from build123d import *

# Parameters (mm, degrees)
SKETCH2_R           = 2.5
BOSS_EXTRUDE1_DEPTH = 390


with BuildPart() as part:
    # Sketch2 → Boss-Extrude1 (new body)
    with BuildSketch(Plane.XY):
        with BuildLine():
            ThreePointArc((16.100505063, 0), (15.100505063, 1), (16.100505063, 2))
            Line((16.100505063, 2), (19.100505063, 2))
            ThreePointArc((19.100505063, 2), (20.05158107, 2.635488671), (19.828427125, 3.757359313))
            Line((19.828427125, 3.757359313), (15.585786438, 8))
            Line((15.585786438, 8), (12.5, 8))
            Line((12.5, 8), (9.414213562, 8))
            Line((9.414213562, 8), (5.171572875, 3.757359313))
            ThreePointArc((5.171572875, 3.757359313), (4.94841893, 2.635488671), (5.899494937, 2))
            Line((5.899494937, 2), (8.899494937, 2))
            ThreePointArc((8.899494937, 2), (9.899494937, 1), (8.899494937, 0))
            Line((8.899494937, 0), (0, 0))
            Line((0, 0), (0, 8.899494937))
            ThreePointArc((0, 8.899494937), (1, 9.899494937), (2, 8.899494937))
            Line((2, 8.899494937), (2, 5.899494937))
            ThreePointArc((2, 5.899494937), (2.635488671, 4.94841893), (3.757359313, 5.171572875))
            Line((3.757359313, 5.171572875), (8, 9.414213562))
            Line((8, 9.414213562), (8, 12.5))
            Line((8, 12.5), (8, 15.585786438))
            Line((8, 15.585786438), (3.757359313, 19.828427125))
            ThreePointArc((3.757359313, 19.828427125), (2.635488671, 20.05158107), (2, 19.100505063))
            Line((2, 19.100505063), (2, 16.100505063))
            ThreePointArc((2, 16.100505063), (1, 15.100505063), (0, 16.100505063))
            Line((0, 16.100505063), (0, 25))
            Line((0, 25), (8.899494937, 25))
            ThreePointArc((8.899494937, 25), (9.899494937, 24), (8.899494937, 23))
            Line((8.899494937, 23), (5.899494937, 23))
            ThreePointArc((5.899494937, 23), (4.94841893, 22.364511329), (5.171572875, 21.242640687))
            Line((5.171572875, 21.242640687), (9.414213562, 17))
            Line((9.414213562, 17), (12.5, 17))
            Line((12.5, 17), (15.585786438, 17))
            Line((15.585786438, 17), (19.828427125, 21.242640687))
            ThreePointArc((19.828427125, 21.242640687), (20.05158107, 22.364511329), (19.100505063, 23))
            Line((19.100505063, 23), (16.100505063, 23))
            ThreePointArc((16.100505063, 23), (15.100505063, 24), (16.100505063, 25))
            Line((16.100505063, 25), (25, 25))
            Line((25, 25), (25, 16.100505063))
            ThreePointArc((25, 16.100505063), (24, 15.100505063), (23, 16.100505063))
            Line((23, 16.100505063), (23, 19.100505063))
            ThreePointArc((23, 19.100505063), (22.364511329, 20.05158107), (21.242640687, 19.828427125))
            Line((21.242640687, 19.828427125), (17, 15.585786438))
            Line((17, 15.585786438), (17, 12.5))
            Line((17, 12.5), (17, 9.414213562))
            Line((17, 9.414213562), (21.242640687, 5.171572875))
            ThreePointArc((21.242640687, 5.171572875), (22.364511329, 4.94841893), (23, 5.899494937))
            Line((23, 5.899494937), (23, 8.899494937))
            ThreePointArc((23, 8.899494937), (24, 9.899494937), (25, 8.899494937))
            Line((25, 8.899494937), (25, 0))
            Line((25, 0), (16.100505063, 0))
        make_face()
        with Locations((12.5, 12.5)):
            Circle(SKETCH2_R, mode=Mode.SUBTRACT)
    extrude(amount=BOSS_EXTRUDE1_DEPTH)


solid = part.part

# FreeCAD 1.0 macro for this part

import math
import FreeCAD as App
import Part
import Sketcher

doc = App.newDocument("Part")
body = doc.addObject("PartDesign::Body", "Body")

# Sketch on XY plane
sketch1 = doc.addObject("Sketcher::SketchObject", "Sketch")
body.addObject(sketch1)
sketch1.AttachmentSupport = (doc.XY_Plane, [""])
sketch1.MapMode = "FlatFace"
sketch1.addGeometry(Part.ArcOfCircle(Part.Circle(App.Vector(16.100505, 1, 0), App.Vector(0, 0, 1), 1), math.radians(90), math.radians(270)), False)
sketch1.addGeometry(Part.LineSegment(App.Vector(16.100505, 0, 0), App.Vector(25, 0, 0)), False)
sketch1.addGeometry(Part.LineSegment(App.Vector(25, 0, 0), App.Vector(25, 8.899495, 0)), False)
sketch1.addGeometry(Part.ArcOfCircle(Part.Circle(App.Vector(24, 8.899495, 0), App.Vector(0, 0, 1), 1), math.radians(0), math.radians(180)), False)
sketch1.addGeometry(Part.LineSegment(App.Vector(23, 8.899495, 0), App.Vector(23, 5.899495, 0)), False)
sketch1.addGeometry(Part.ArcOfCircle(Part.Circle(App.Vector(21.970563, 5.899495, 0), App.Vector(0, 0, 1), 1.029437), math.radians(-135), math.radians(0)), False)
sketch1.addGeometry(Part.LineSegment(App.Vector(21.242641, 5.171573, 0), App.Vector(17, 9.414214, 0)), False)
sketch1.addGeometry(Part.LineSegment(App.Vector(17, 9.414214, 0), App.Vector(17, 15.585786, 0)), False)
sketch1.addGeometry(Part.LineSegment(App.Vector(17, 15.585786, 0), App.Vector(21.242641, 19.828427, 0)), False)
sketch1.addGeometry(Part.ArcOfCircle(Part.Circle(App.Vector(21.970563, 19.100505, 0), App.Vector(0, 0, 1), 1.029437), math.radians(0), math.radians(135)), False)
sketch1.addGeometry(Part.LineSegment(App.Vector(23, 19.100505, 0), App.Vector(23, 16.100505, 0)), False)
sketch1.addGeometry(Part.ArcOfCircle(Part.Circle(App.Vector(24, 16.100505, 0), App.Vector(0, 0, 1), 1), math.radians(180), math.radians(360)), False)
sketch1.addGeometry(Part.LineSegment(App.Vector(25, 16.100505, 0), App.Vector(25, 25, 0)), False)
sketch1.addGeometry(Part.LineSegment(App.Vector(25, 25, 0), App.Vector(16.100505, 25, 0)), False)
sketch1.addGeometry(Part.ArcOfCircle(Part.Circle(App.Vector(16.100505, 24, 0), App.Vector(0, 0, 1), 1), math.radians(90), math.radians(270)), False)
sketch1.addGeometry(Part.LineSegment(App.Vector(16.100505, 23, 0), App.Vector(19.100505, 23, 0)), False)
sketch1.addGeometry(Part.ArcOfCircle(Part.Circle(App.Vector(19.100505, 21.970563, 0), App.Vector(0, 0, 1), 1.029437), math.radians(-45), math.radians(90)), False)
sketch1.addGeometry(Part.LineSegment(App.Vector(19.828427, 21.242641, 0), App.Vector(15.585786, 17, 0)), False)
sketch1.addGeometry(Part.LineSegment(App.Vector(15.585786, 17, 0), App.Vector(9.414214, 17, 0)), False)
sketch1.addGeometry(Part.LineSegment(App.Vector(9.414214, 17, 0), App.Vector(5.171573, 21.242641, 0)), False)
sketch1.addGeometry(Part.ArcOfCircle(Part.Circle(App.Vector(5.899495, 21.970563, 0), App.Vector(0, 0, 1), 1.029437), math.radians(90), math.radians(225)), False)
sketch1.addGeometry(Part.LineSegment(App.Vector(5.899495, 23, 0), App.Vector(8.899495, 23, 0)), False)
sketch1.addGeometry(Part.ArcOfCircle(Part.Circle(App.Vector(8.899495, 24, 0), App.Vector(0, 0, 1), 1), math.radians(-90), math.radians(90)), False)
sketch1.addGeometry(Part.LineSegment(App.Vector(8.899495, 25, 0), App.Vector(0, 25, 0)), False)
sketch1.addGeometry(Part.LineSegment(App.Vector(0, 25, 0), App.Vector(0, 16.100505, 0)), False)
sketch1.addGeometry(Part.ArcOfCircle(Part.Circle(App.Vector(1, 16.100505, 0), App.Vector(0, 0, 1), 1), math.radians(180), math.radians(360)), False)
sketch1.addGeometry(Part.LineSegment(App.Vector(2, 16.100505, 0), App.Vector(2, 19.100505, 0)), False)
sketch1.addGeometry(Part.ArcOfCircle(Part.Circle(App.Vector(3.029437, 19.100505, 0), App.Vector(0, 0, 1), 1.029437), math.radians(45), math.radians(180)), False)
sketch1.addGeometry(Part.LineSegment(App.Vector(3.757359, 19.828427, 0), App.Vector(8, 15.585786, 0)), False)
sketch1.addGeometry(Part.LineSegment(App.Vector(8, 15.585786, 0), App.Vector(8, 9.414214, 0)), False)
sketch1.addGeometry(Part.LineSegment(App.Vector(8, 9.414214, 0), App.Vector(3.757359, 5.171573, 0)), False)
sketch1.addGeometry(Part.ArcOfCircle(Part.Circle(App.Vector(3.029437, 5.899495, 0), App.Vector(0, 0, 1), 1.029437), math.radians(180), math.radians(315)), False)
sketch1.addGeometry(Part.LineSegment(App.Vector(2, 5.899495, 0), App.Vector(2, 8.899495, 0)), False)
sketch1.addGeometry(Part.ArcOfCircle(Part.Circle(App.Vector(1, 8.899495, 0), App.Vector(0, 0, 1), 1), math.radians(0), math.radians(180)), False)
sketch1.addGeometry(Part.LineSegment(App.Vector(0, 8.899495, 0), App.Vector(0, 0, 0)), False)
sketch1.addGeometry(Part.LineSegment(App.Vector(0, 0, 0), App.Vector(8.899495, 0, 0)), False)
sketch1.addGeometry(Part.ArcOfCircle(Part.Circle(App.Vector(8.899495, 1, 0), App.Vector(0, 0, 1), 1), math.radians(-90), math.radians(90)), False)
sketch1.addGeometry(Part.LineSegment(App.Vector(8.899495, 2, 0), App.Vector(5.899495, 2, 0)), False)
sketch1.addGeometry(Part.ArcOfCircle(Part.Circle(App.Vector(5.899495, 3.029437, 0), App.Vector(0, 0, 1), 1.029437), math.radians(135), math.radians(270)), False)
sketch1.addGeometry(Part.LineSegment(App.Vector(5.171573, 3.757359, 0), App.Vector(9.414214, 8, 0)), False)
sketch1.addGeometry(Part.LineSegment(App.Vector(9.414214, 8, 0), App.Vector(15.585786, 8, 0)), False)
sketch1.addGeometry(Part.LineSegment(App.Vector(15.585786, 8, 0), App.Vector(19.828427, 3.757359, 0)), False)
sketch1.addGeometry(Part.ArcOfCircle(Part.Circle(App.Vector(19.100505, 3.029437, 0), App.Vector(0, 0, 1), 1.029437), math.radians(-90), math.radians(45)), False)
sketch1.addGeometry(Part.LineSegment(App.Vector(19.100505, 2, 0), App.Vector(16.100505, 2, 0)), False)
sketch1.addGeometry(Part.Circle(App.Vector(12.5, 12.5, 0), App.Vector(0, 0, 1), 2.5), False)
sketch1.addConstraint(Sketcher.Constraint("Tangent", 0, 2, 1, 1))
sketch1.addConstraint(Sketcher.Constraint("Coincident", 1, 2, 2, 1))
sketch1.addConstraint(Sketcher.Constraint("Tangent", 2, 2, 3, 1))
sketch1.addConstraint(Sketcher.Constraint("Tangent", 3, 2, 4, 1))
sketch1.addConstraint(Sketcher.Constraint("Tangent", 4, 2, 5, 2))
sketch1.addConstraint(Sketcher.Constraint("Tangent", 5, 1, 6, 1))
sketch1.addConstraint(Sketcher.Constraint("Coincident", 6, 2, 7, 1))
sketch1.addConstraint(Sketcher.Constraint("Coincident", 7, 2, 8, 1))
sketch1.addConstraint(Sketcher.Constraint("Tangent", 8, 2, 9, 2))
sketch1.addConstraint(Sketcher.Constraint("Tangent", 9, 1, 10, 1))
sketch1.addConstraint(Sketcher.Constraint("Tangent", 10, 2, 11, 1))
sketch1.addConstraint(Sketcher.Constraint("Tangent", 11, 2, 12, 1))
sketch1.addConstraint(Sketcher.Constraint("Coincident", 12, 2, 13, 1))
sketch1.addConstraint(Sketcher.Constraint("Tangent", 13, 2, 14, 1))
sketch1.addConstraint(Sketcher.Constraint("Tangent", 14, 2, 15, 1))
sketch1.addConstraint(Sketcher.Constraint("Tangent", 15, 2, 16, 2))
sketch1.addConstraint(Sketcher.Constraint("Tangent", 16, 1, 17, 1))
sketch1.addConstraint(Sketcher.Constraint("Coincident", 17, 2, 18, 1))
sketch1.addConstraint(Sketcher.Constraint("Coincident", 18, 2, 19, 1))
sketch1.addConstraint(Sketcher.Constraint("Tangent", 19, 2, 20, 2))
sketch1.addConstraint(Sketcher.Constraint("Tangent", 20, 1, 21, 1))
sketch1.addConstraint(Sketcher.Constraint("Tangent", 21, 2, 22, 1))
sketch1.addConstraint(Sketcher.Constraint("Tangent", 22, 2, 23, 1))
sketch1.addConstraint(Sketcher.Constraint("Coincident", 23, 2, 24, 1))
sketch1.addConstraint(Sketcher.Constraint("Tangent", 24, 2, 25, 1))
sketch1.addConstraint(Sketcher.Constraint("Tangent", 25, 2, 26, 1))
sketch1.addConstraint(Sketcher.Constraint("Tangent", 26, 2, 27, 2))
sketch1.addConstraint(Sketcher.Constraint("Tangent", 27, 1, 28, 1))
sketch1.addConstraint(Sketcher.Constraint("Coincident", 28, 2, 29, 1))
sketch1.addConstraint(Sketcher.Constraint("Coincident", 29, 2, 30, 1))
sketch1.addConstraint(Sketcher.Constraint("Tangent", 30, 2, 31, 2))
sketch1.addConstraint(Sketcher.Constraint("Tangent", 31, 1, 32, 1))
sketch1.addConstraint(Sketcher.Constraint("Tangent", 32, 2, 33, 1))
sketch1.addConstraint(Sketcher.Constraint("Tangent", 33, 2, 34, 1))
sketch1.addConstraint(Sketcher.Constraint("Coincident", 34, 2, 35, 1))
sketch1.addConstraint(Sketcher.Constraint("Tangent", 35, 2, 36, 1))
sketch1.addConstraint(Sketcher.Constraint("Tangent", 36, 2, 37, 1))
sketch1.addConstraint(Sketcher.Constraint("Tangent", 37, 2, 38, 2))
sketch1.addConstraint(Sketcher.Constraint("Tangent", 38, 1, 39, 1))
sketch1.addConstraint(Sketcher.Constraint("Coincident", 39, 2, 40, 1))
sketch1.addConstraint(Sketcher.Constraint("Coincident", 40, 2, 41, 1))
sketch1.addConstraint(Sketcher.Constraint("Tangent", 41, 2, 42, 2))
sketch1.addConstraint(Sketcher.Constraint("Tangent", 42, 1, 43, 1))
sketch1.addConstraint(Sketcher.Constraint("Tangent", 43, 2, 0, 1))
sketch1.addConstraint(Sketcher.Constraint("Horizontal", 1))
sketch1.addConstraint(Sketcher.Constraint("Vertical", 2))
sketch1.addConstraint(Sketcher.Constraint("Vertical", 4))
sketch1.addConstraint(Sketcher.Constraint("Vertical", 7))
sketch1.addConstraint(Sketcher.Constraint("Vertical", 10))
sketch1.addConstraint(Sketcher.Constraint("Vertical", 12))
sketch1.addConstraint(Sketcher.Constraint("Horizontal", 13))
sketch1.addConstraint(Sketcher.Constraint("Horizontal", 15))
sketch1.addConstraint(Sketcher.Constraint("Horizontal", 18))
sketch1.addConstraint(Sketcher.Constraint("Horizontal", 21))
sketch1.addConstraint(Sketcher.Constraint("Horizontal", 23))
sketch1.addConstraint(Sketcher.Constraint("Vertical", 24))
sketch1.addConstraint(Sketcher.Constraint("Vertical", 26))
sketch1.addConstraint(Sketcher.Constraint("Vertical", 29))
sketch1.addConstraint(Sketcher.Constraint("Vertical", 32))
sketch1.addConstraint(Sketcher.Constraint("Vertical", 34))
sketch1.addConstraint(Sketcher.Constraint("Horizontal", 35))
sketch1.addConstraint(Sketcher.Constraint("Horizontal", 37))
sketch1.addConstraint(Sketcher.Constraint("Horizontal", 40))
sketch1.addConstraint(Sketcher.Constraint("Horizontal", 43))
sketch1.addConstraint(Sketcher.Constraint("Coincident", 34, 2, -1, 1))
sketch1.addConstraint(Sketcher.Constraint("Equal", 0, 3))
sketch1.addConstraint(Sketcher.Constraint("Equal", 5, 9))
sketch1.addConstraint(Sketcher.Constraint("Equal", 3, 11))
sketch1.addConstraint(Sketcher.Constraint("Equal", 11, 14))
sketch1.addConstraint(Sketcher.Constraint("Equal", 9, 16))
sketch1.addConstraint(Sketcher.Constraint("Equal", 16, 20))
sketch1.addConstraint(Sketcher.Constraint("Equal", 14, 22))
sketch1.addConstraint(Sketcher.Constraint("Equal", 22, 25))
sketch1.addConstraint(Sketcher.Constraint("Equal", 20, 27))
sketch1.addConstraint(Sketcher.Constraint("Equal", 27, 31))
sketch1.addConstraint(Sketcher.Constraint("Equal", 25, 33))
sketch1.addConstraint(Sketcher.Constraint("Equal", 33, 36))
sketch1.addConstraint(Sketcher.Constraint("Equal", 31, 38))
sketch1.addConstraint(Sketcher.Constraint("Equal", 38, 42))
sketch1.addConstraint(Sketcher.Constraint("PointOnObject", 0, 2, -1))
sketch1.addConstraint(Sketcher.Constraint("PointOnObject", 23, 2, -2))
sketch1.addConstraint(Sketcher.Constraint("Perpendicular", 6, 8))
sketch1.addConstraint(Sketcher.Constraint("Parallel", 8, 17))
sketch1.addConstraint(Sketcher.Constraint("Perpendicular", 17, 19))
sketch1.addConstraint(Sketcher.Constraint("Parallel", 19, 28))
sketch1.addConstraint(Sketcher.Constraint("Perpendicular", 28, 30))
sketch1.addConstraint(Sketcher.Constraint("Parallel", 30, 39))
sketch1.addConstraint(Sketcher.Constraint("Perpendicular", 39, 41))
sketch1.addConstraint(Sketcher.Constraint("Horizontal", 16, 3, 20, 3))
sketch1.addConstraint(Sketcher.Constraint("Horizontal", 11, 3, 25, 3))
sketch1.addConstraint(Sketcher.Constraint("Horizontal", 9, 3, 27, 3))
sketch1.addConstraint(Sketcher.Constraint("Horizontal", 5, 3, 31, 3))
sketch1.addConstraint(Sketcher.Constraint("Horizontal", 3, 3, 33, 3))
sketch1.addConstraint(Sketcher.Constraint("Horizontal", 16, 1, 19, 2))
sketch1.addConstraint(Sketcher.Constraint("Horizontal", 7, 2, 28, 2))
sketch1.addConstraint(Sketcher.Constraint("Horizontal", 6, 2, 29, 2))
sketch1.addConstraint(Sketcher.Constraint("Vertical", 0, 3, 14, 3))
sketch1.addConstraint(Sketcher.Constraint("Vertical", 22, 3, 36, 3))
sketch1.addConstraint(Sketcher.Constraint("Vertical", 20, 3, 38, 3))
sketch1.addConstraint(Sketcher.Constraint("Vertical", 16, 3, 42, 3))
sketch1.addConstraint(Sketcher.Constraint("Vertical", 18, 2, 39, 2))
sketch1.addConstraint(Sketcher.Constraint("Equal", 15, 21))
sketch1.addConstraint(Sketcher.Constraint("Equal", 13, 23))
sketch1.addConstraint(Sketcher.Constraint("Equal", 35, 2))
sketch1.addConstraint(Sketcher.Constraint("Equal", 43, 4))
sketch1.addConstraint(Sketcher.Constraint("Equal", 40, 7))
sketch1.addConstraint(Sketcher.Constraint("Equal", 4, 10))
sketch1.addConstraint(Sketcher.Constraint("Equal", 2, 12))
sketch1.addConstraint(Sketcher.Constraint("Equal", 8, 17))
sketch1.addConstraint(Sketcher.Constraint("Diameter", 44, 5.0))
sketch1.addConstraint(Sketcher.Constraint("Radius", 0, 1.0))
sketch1.addConstraint(Sketcher.Constraint("DistanceX", 15, 1, 15, 2, 3.0))
sketch1.addConstraint(Sketcher.Constraint("Distance", 6, 6.0))
sketch1.addConstraint(Sketcher.Constraint("DistanceX", -1, 1, 3, 3, 24.0))
sketch1.addConstraint(Sketcher.Constraint("DistanceX", -1, 1, 6, 2, 17.0))
sketch1.addConstraint(Sketcher.Constraint("DistanceX", -1, 1, 44, 3, 12.5))
sketch1.addConstraint(Sketcher.Constraint("DistanceY", -1, 1, 44, 3, 12.5))
sketch1.addConstraint(Sketcher.Constraint("DistanceX", 1, 1, 1, 2, 8.899495))
pad1 = doc.addObject("PartDesign::Pad", "Pad")
body.addObject(pad1)
pad1.Profile = sketch1
pad1.Length = 390

doc.recompute()
